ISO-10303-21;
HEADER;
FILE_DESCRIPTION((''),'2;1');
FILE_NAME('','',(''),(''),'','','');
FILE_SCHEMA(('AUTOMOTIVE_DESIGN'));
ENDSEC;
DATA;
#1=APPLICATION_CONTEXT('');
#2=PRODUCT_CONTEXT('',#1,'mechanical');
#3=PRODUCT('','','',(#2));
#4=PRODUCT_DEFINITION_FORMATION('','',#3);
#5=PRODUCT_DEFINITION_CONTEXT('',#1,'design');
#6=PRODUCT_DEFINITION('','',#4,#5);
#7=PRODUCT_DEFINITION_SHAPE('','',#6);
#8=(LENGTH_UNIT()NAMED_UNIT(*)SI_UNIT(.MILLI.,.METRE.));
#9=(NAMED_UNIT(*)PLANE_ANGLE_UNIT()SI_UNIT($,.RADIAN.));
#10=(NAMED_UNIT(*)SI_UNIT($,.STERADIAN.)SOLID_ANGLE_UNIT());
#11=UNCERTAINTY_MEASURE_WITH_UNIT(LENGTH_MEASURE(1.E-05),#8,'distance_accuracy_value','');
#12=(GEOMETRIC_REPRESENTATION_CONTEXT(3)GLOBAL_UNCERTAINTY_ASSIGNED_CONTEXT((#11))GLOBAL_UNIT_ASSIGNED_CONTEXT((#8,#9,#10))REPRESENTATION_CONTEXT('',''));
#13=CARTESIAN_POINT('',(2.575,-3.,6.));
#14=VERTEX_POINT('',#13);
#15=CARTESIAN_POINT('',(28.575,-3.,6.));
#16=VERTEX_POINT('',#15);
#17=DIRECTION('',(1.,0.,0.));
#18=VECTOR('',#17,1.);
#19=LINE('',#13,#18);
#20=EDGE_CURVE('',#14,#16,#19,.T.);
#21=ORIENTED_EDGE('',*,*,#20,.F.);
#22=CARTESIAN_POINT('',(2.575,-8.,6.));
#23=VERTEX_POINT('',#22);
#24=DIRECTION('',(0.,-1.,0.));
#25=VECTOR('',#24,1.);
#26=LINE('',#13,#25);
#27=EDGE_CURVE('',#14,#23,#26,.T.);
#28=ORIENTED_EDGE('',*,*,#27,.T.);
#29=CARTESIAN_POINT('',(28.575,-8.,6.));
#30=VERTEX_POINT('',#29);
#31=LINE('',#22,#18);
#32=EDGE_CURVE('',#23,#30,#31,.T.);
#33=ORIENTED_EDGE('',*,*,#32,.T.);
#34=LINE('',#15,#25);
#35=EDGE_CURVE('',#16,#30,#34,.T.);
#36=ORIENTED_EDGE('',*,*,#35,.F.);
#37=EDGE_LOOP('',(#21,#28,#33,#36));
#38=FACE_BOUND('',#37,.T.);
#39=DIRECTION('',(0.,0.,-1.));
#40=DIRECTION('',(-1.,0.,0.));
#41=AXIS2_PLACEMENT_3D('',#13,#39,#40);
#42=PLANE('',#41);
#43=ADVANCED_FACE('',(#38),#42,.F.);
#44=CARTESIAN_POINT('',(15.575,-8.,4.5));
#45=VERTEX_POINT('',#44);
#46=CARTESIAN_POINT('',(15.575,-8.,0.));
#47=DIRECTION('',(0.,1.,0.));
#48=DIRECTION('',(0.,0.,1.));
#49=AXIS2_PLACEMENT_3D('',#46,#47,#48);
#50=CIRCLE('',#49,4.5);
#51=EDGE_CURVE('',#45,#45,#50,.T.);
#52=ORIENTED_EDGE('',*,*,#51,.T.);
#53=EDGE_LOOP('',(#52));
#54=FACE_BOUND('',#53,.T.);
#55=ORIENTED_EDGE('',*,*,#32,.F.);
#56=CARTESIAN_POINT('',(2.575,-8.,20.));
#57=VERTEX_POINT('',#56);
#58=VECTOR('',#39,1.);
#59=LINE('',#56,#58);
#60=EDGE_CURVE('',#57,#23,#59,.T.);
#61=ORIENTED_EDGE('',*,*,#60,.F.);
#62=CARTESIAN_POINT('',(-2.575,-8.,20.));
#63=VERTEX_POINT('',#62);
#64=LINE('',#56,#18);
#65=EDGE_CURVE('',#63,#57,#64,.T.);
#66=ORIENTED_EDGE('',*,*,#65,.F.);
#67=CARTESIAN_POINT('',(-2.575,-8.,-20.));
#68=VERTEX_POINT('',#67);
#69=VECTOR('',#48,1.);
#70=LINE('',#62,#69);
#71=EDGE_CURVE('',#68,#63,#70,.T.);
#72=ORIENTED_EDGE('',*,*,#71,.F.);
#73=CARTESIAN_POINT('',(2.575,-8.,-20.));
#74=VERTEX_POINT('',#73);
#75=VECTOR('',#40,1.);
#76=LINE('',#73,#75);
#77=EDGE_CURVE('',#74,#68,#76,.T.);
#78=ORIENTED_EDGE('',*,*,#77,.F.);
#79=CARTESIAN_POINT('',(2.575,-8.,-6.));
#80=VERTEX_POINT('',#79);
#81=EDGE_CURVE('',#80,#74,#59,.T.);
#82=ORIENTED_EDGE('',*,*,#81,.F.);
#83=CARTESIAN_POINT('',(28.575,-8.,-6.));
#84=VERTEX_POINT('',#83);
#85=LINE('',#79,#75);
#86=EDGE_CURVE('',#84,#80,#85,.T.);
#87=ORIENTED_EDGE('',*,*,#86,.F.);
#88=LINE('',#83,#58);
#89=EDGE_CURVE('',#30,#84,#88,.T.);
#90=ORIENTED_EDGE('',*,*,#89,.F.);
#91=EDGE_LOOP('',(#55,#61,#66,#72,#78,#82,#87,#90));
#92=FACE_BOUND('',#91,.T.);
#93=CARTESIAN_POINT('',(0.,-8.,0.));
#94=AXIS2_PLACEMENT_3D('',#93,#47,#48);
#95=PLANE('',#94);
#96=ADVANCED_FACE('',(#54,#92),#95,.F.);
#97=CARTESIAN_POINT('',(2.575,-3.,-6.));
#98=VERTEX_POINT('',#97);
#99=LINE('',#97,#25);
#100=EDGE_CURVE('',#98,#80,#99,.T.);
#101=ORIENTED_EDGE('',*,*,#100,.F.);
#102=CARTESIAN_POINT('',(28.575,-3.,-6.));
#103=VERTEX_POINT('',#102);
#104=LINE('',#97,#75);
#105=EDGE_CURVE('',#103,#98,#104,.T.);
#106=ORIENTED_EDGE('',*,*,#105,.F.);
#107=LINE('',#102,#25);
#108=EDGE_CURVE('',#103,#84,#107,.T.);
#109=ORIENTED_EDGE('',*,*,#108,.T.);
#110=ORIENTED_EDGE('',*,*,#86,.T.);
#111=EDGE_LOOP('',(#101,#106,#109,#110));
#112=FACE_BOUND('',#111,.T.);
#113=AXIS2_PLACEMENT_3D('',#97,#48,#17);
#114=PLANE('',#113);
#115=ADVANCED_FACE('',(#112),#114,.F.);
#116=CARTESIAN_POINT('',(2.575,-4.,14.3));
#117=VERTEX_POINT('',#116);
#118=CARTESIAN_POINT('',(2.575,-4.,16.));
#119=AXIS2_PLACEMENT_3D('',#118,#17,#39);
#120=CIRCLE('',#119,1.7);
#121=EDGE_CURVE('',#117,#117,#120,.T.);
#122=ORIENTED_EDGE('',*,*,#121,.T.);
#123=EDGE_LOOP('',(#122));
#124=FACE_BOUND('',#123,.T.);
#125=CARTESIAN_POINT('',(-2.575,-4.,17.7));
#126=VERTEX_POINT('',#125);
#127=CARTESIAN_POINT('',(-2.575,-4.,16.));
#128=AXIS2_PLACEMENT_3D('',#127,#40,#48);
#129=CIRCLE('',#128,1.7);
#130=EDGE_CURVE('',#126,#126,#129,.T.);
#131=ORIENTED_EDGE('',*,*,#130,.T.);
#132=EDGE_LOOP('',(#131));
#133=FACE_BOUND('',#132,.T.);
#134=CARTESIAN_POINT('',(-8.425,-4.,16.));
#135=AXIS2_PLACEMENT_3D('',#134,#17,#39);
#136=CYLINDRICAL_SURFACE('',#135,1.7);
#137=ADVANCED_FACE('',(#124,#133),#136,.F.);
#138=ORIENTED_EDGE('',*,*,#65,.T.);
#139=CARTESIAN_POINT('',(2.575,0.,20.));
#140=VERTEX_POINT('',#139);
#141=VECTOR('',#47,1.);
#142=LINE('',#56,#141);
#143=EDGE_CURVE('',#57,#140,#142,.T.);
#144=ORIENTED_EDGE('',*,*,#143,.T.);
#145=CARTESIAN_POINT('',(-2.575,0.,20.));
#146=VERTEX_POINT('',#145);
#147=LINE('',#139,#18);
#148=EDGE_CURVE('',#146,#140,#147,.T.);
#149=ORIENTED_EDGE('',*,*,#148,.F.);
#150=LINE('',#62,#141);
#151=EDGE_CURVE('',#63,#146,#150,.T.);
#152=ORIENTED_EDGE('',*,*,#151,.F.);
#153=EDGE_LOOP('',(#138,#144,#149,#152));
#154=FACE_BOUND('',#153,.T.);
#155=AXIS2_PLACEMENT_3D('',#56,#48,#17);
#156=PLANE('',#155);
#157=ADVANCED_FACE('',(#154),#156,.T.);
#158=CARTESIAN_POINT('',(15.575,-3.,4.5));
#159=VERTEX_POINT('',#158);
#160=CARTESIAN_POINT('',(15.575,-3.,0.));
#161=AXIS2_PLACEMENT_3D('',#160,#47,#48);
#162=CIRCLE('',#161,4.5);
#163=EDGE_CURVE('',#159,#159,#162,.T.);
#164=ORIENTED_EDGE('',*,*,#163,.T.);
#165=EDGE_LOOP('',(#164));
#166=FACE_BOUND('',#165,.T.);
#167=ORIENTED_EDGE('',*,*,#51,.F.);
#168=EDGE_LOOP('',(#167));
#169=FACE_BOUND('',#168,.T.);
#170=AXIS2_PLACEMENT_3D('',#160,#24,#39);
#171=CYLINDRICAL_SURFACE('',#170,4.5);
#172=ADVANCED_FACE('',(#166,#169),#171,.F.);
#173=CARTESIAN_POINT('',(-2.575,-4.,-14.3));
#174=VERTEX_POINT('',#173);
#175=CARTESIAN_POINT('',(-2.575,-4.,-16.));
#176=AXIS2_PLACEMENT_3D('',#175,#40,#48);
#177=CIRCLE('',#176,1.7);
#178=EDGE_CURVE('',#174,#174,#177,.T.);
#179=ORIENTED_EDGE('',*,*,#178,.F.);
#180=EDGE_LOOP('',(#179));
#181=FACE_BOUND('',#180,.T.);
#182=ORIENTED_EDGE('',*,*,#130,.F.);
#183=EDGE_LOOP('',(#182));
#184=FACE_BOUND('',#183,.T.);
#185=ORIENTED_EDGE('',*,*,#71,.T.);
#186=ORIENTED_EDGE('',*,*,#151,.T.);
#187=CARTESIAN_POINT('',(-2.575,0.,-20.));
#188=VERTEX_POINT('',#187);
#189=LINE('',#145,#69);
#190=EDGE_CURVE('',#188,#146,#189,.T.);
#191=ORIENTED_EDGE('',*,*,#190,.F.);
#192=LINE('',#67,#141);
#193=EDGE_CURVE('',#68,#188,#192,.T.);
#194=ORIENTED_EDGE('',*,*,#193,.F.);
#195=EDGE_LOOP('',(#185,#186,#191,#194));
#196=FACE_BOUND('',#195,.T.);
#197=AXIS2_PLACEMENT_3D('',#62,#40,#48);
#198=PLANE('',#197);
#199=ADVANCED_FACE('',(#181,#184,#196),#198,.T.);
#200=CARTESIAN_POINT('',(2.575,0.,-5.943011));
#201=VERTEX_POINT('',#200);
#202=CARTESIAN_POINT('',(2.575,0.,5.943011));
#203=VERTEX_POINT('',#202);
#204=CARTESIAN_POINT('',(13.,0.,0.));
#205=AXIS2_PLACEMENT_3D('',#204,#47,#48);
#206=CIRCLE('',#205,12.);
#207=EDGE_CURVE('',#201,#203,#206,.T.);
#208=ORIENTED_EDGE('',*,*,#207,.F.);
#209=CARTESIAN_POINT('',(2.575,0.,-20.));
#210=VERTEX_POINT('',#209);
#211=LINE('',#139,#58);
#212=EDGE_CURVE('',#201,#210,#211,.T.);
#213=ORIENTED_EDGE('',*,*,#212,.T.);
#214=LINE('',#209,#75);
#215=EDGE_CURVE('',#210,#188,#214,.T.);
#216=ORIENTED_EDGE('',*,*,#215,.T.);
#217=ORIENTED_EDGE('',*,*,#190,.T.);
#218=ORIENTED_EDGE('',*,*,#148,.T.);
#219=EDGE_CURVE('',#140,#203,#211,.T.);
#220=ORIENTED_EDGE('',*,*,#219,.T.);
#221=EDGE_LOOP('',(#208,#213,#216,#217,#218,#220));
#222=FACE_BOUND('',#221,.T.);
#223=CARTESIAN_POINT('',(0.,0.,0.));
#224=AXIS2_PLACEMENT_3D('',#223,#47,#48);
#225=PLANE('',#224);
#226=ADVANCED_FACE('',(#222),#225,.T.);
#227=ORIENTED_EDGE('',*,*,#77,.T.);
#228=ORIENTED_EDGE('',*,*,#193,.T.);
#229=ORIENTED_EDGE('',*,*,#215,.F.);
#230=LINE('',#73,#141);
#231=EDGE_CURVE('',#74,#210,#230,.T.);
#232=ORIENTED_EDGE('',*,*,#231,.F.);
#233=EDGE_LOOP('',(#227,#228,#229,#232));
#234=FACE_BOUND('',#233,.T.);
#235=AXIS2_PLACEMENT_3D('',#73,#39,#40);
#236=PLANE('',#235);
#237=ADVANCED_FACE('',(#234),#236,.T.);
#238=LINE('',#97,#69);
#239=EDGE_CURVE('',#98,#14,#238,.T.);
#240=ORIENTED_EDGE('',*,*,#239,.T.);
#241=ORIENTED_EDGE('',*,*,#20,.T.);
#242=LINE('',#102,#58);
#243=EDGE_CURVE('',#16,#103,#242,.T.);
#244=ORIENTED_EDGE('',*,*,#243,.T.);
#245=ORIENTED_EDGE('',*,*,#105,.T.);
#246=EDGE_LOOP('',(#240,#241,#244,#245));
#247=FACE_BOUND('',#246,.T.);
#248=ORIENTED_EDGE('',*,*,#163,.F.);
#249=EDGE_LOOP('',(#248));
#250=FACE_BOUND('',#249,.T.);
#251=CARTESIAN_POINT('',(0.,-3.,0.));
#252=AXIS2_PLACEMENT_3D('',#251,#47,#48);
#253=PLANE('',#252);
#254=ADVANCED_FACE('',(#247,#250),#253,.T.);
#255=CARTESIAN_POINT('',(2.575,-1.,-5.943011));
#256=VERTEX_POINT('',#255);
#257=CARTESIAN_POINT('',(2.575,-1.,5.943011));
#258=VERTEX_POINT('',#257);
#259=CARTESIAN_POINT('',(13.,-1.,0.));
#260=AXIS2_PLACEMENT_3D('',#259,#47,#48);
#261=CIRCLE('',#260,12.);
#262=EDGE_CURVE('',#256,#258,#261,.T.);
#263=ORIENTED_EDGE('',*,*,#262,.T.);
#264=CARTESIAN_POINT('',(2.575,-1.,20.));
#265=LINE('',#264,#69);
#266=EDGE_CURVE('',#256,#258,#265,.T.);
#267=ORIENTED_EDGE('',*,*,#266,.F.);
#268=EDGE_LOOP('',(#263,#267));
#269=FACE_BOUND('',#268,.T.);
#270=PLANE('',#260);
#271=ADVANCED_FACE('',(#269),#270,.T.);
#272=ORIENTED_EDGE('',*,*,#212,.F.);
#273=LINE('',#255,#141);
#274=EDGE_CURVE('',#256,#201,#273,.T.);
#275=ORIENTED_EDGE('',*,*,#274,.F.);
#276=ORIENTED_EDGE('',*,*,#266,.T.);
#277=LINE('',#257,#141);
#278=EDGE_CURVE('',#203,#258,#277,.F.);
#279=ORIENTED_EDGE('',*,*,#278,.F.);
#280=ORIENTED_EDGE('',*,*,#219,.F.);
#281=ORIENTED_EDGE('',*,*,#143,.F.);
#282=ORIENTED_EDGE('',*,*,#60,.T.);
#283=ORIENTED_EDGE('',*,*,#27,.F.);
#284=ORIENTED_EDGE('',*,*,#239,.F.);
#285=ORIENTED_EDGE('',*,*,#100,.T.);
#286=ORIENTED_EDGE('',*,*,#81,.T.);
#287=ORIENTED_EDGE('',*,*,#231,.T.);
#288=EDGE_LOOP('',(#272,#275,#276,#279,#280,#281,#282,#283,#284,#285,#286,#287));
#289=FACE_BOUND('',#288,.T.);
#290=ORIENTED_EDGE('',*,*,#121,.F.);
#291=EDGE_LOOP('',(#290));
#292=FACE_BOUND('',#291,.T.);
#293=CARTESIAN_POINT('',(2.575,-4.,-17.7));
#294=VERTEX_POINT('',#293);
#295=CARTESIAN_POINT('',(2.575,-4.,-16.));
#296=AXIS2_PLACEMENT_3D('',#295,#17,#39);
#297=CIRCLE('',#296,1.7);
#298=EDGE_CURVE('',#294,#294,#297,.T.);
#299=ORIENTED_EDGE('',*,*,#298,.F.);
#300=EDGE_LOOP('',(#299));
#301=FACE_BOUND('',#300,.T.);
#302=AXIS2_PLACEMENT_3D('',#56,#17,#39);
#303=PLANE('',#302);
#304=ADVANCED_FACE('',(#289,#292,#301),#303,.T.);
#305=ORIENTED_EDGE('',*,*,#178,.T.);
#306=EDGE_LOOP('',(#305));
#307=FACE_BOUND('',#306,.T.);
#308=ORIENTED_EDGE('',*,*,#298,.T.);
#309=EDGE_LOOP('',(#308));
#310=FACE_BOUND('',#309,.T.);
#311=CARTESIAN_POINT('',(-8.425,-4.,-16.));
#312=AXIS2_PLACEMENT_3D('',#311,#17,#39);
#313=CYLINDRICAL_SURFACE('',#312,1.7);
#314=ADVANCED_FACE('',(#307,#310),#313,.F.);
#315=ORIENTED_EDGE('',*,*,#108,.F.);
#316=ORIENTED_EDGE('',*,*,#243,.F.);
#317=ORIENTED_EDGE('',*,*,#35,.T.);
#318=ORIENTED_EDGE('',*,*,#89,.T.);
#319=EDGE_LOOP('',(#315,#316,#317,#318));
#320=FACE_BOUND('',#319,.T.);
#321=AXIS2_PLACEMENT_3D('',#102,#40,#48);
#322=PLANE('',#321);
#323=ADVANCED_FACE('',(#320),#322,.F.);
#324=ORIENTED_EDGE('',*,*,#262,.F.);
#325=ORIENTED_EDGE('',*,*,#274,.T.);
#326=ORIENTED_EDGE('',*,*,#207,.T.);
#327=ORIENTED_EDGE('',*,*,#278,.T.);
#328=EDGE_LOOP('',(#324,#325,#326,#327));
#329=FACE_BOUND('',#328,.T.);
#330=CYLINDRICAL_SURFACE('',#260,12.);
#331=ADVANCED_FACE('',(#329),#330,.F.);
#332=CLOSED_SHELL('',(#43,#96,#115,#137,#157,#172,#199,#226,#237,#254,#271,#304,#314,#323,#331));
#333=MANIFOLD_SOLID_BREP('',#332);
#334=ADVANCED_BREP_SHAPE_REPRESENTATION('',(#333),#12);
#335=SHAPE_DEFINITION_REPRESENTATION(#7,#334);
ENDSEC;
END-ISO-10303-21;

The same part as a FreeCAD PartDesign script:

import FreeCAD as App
import Part
import Sketcher
from FreeCAD import Vector
Q = App.Units.Quantity


def add_polygon(sketch, points):
    """Adds a closed chain of lines whose ends are joined by coincident constraints."""
    first, n = sketch.GeometryCount, len(points)
    for a, b in zip(points, points[1:] + points[:1]):
        sketch.addGeometry(Part.LineSegment(App.Vector(*a, 0), App.Vector(*b, 0)), False)
    for i in range(n):
        sketch.addConstraint(Sketcher.Constraint("Coincident", first + i, 2, first + (i + 1) % n, 1))

doc = App.newDocument("Part")
body = doc.addObject("PartDesign::Body", "Body")

sketch1 = body.newObject("Sketcher::SketchObject", "Sketch")
sketch1.AttachmentSupport = (doc.getObject("XZ_Plane"), [""])
sketch1.MapMode = "FlatFace"
add_polygon(sketch1, [(-2.575, -20), (-2.575, 20), (2.575, 20), (2.575, -20)])
sketch1.addConstraint(Sketcher.Constraint("Vertical", 0))
sketch1.addConstraint(Sketcher.Constraint("Horizontal", 1))
sketch1.addConstraint(Sketcher.Constraint("Vertical", 2))
sketch1.addConstraint(Sketcher.Constraint("Horizontal", 3))
sketch1.addConstraint(Sketcher.Constraint("Symmetric", 0, 2, 2, 2, -1, 1))
sketch1.addConstraint(Sketcher.Constraint("DistanceY", 0, 1, 0, 2, Q("40 mm")))
sketch1.addConstraint(Sketcher.Constraint("DistanceX", 1, 1, 1, 2, Q("5.15 mm")))
pad1 = body.newObject("PartDesign::Pad", "Pad")
pad1.Profile = sketch1
pad1.Length = 8

sketch2 = body.newObject("Sketcher::SketchObject", "Sketch001")
sketch2.AttachmentSupport = (doc.getObject("YZ_Plane"), [""])
sketch2.MapMode = "FlatFace"
sketch2.AttachmentOffset = App.Placement(Vector(0, 0, 2.575), App.Rotation())
sketch2.addGeometry(Part.Circle(Vector(-4, 16, 0), Vector(0, 0, 1), 1.7), False)
sketch2.addGeometry(Part.Circle(Vector(-4, -16, 0), Vector(0, 0, 1), 1.7), False)
sketch2.addConstraint(Sketcher.Constraint("Equal", 0, 1))
sketch2.addConstraint(Sketcher.Constraint("Symmetric", 0, 3, 1, 3, -1))
sketch2.addConstraint(Sketcher.Constraint("Diameter", 0, Q("3.4 mm")))
sketch2.addConstraint(Sketcher.Constraint("DistanceX", 0, 3, -1, 1, Q("4 mm")))
sketch2.addConstraint(Sketcher.Constraint("DistanceY", -1, 1, 0, 3, Q("16 mm")))
pocket1 = body.newObject("PartDesign::Pocket", "Pocket")
pocket1.Profile = sketch2
pocket1.Length = 11

sketch3 = body.newObject("Sketcher::SketchObject", "Sketch002")
sketch3.AttachmentSupport = (doc.getObject("XZ_Plane"), [""])
sketch3.MapMode = "FlatFace"
sketch3.AttachmentOffset = App.Placement(Vector(0, 0, 8), App.Rotation())
add_polygon(sketch3, [(2.575, -6), (2.575, 6), (28.575, 6), (28.575, -6)])
sketch3.addGeometry(Part.Circle(Vector(15.575, 0, 0), Vector(0, 0, 1), 4.5), False)
sketch3.addConstraint(Sketcher.Constraint("Vertical", 0))
sketch3.addConstraint(Sketcher.Constraint("Horizontal", 1))
sketch3.addConstraint(Sketcher.Constraint("Vertical", 2))
sketch3.addConstraint(Sketcher.Constraint("Horizontal", 3))
sketch3.addConstraint(Sketcher.Constraint("PointOnObject", 4, 3, -1))
sketch3.addConstraint(Sketcher.Constraint("Diameter", 4, Q("9 mm")))
sketch3.addConstraint(Sketcher.Constraint("DistanceX", 1, 1, 1, 2, Q("26 mm")))
sketch3.addConstraint(Sketcher.Constraint("DistanceY", 0, 1, 0, 2, Q("12 mm")))
sketch3.addConstraint(Sketcher.Constraint("DistanceY", -1, 1, 0, 2, Q("6 mm")))
sketch3.addConstraint(Sketcher.Constraint("DistanceX", 0, 2, 4, 3, Q("13 mm")))
sketch3.addConstraint(Sketcher.Constraint("DistanceX", -1, 1, 4, 3, Q("15.575 mm")))
pad2 = body.newObject("PartDesign::Pad", "Pad001")
pad2.Profile = sketch3
pad2.Length = 5
pad2.Reversed = True

sketch4 = body.newObject("Sketcher::SketchObject", "Sketch003")
sketch4.AttachmentSupport = (doc.getObject("XZ_Plane"), [""])
sketch4.MapMode = "FlatFace"
sketch4.addGeometry(Part.Circle(Vector(13, 0, 0), Vector(0, 0, 1), 12), False)
sketch4.addConstraint(Sketcher.Constraint("PointOnObject", 0, 3, -1))
sketch4.addConstraint(Sketcher.Constraint("Diameter", 0, Q("24 mm")))
sketch4.addConstraint(Sketcher.Constraint("DistanceX", -1, 1, 0, 3, Q("13 mm")))
pocket2 = body.newObject("PartDesign::Pocket", "Pocket001")
pocket2.Profile = sketch4
pocket2.Length = 1
pocket2.Reversed = True

doc.recompute()
